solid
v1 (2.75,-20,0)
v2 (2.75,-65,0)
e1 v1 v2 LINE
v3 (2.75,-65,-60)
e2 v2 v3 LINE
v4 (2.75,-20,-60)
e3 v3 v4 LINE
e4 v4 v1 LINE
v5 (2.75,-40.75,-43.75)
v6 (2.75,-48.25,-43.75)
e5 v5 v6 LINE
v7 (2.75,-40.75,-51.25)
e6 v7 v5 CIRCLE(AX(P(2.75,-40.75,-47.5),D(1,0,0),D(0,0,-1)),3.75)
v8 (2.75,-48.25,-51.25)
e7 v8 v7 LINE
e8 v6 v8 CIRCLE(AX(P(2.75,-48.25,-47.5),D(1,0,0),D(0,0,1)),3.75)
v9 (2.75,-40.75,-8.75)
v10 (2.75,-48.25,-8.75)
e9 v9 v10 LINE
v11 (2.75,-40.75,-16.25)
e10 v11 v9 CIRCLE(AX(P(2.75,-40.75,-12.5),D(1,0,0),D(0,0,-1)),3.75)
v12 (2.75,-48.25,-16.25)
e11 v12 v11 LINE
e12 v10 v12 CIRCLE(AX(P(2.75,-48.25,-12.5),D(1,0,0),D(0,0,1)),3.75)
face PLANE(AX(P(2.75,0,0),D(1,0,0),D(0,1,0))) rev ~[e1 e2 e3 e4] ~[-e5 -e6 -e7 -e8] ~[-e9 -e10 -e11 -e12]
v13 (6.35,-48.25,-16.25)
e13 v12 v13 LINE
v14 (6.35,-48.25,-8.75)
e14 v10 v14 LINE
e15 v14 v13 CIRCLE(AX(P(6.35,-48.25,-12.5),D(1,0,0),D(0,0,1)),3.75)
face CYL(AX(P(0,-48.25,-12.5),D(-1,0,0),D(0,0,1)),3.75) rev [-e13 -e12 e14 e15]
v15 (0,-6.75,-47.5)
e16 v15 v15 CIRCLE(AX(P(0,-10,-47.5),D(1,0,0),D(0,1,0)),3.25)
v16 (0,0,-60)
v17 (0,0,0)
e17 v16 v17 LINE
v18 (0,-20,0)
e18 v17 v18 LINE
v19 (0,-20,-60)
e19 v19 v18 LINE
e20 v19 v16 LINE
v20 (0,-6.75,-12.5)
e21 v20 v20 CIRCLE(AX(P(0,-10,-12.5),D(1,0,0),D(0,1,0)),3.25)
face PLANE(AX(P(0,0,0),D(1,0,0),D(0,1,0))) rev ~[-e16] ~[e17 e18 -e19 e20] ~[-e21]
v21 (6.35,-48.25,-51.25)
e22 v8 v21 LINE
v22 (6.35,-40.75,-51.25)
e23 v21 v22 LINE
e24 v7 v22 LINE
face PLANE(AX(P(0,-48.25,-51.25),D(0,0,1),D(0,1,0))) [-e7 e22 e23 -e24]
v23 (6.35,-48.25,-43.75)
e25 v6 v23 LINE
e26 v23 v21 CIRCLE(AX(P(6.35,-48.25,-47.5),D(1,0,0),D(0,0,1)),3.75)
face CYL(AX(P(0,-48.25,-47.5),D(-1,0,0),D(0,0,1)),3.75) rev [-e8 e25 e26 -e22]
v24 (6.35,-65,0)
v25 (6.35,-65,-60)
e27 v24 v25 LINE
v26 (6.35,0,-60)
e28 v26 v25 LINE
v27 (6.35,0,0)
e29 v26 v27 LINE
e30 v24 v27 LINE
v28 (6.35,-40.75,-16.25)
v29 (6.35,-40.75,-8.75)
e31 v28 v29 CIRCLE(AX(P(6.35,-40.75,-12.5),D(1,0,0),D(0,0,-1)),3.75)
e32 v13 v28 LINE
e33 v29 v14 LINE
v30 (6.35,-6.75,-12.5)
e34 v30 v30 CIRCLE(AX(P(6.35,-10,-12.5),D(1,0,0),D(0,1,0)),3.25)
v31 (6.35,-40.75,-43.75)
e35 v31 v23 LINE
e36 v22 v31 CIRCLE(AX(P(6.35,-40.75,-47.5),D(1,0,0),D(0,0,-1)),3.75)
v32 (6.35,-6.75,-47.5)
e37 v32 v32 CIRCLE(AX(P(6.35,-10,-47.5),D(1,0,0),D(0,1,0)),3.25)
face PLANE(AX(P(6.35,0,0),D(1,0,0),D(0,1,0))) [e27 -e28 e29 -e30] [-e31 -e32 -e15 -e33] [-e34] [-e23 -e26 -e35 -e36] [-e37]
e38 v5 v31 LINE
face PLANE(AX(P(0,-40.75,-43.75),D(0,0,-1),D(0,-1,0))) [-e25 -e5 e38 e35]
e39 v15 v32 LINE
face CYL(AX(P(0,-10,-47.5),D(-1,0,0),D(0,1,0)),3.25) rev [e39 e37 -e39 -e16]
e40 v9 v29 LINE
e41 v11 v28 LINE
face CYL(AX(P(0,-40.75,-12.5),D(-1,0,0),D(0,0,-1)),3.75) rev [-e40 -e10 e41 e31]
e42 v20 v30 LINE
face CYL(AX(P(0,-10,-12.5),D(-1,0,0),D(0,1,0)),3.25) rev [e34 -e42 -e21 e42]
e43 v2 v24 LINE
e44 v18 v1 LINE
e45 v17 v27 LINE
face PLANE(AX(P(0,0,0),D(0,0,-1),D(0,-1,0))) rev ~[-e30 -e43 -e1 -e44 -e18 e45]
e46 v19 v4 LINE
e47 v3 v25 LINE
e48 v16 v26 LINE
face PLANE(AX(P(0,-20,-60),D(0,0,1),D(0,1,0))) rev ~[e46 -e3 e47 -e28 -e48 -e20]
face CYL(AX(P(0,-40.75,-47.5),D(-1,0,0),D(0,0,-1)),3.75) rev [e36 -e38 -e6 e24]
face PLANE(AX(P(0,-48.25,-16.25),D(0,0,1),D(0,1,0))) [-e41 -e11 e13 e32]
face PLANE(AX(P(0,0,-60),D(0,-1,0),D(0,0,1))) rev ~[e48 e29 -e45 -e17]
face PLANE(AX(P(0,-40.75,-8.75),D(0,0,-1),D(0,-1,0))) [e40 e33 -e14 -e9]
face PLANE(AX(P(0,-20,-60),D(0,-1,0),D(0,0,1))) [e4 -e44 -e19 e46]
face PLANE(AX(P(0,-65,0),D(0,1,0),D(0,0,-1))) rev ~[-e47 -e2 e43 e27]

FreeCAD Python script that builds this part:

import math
import FreeCAD as App
import Part
import Sketcher
from FreeCAD import Vector

doc = App.newDocument("Part")
body = doc.addObject("PartDesign::Body", "Body")

# Sketch on YZ plane
sketch1 = body.newObject("Sketcher::SketchObject", "Sketch")
sketch1.AttachmentSupport = (doc.getObject("YZ_Plane"), [""])
sketch1.MapMode = "FlatFace"
sketch1.addGeometry(Part.LineSegment(Vector(0, -60, 0), Vector(0, 0, 0)), False)
sketch1.addGeometry(Part.LineSegment(Vector(0, 0, 0), Vector(-65, 0, 0)), False)
sketch1.addGeometry(Part.LineSegment(Vector(-65, 0, 0), Vector(-65, -60, 0)), False)
sketch1.addGeometry(Part.LineSegment(Vector(-65, -60, 0), Vector(0, -60, 0)), False)
sketch1.addGeometry(Part.Circle(Vector(-10, -47.5, 0), Vector(0, 0, 1), 3.2), False)
sketch1.addGeometry(Part.Circle(Vector(-10, -12.5, 0), Vector(0, 0, 1), 3.2), False)
sketch1.addGeometry(Part.ArcOfCircle(Part.Circle(Vector(-40.8, -12.5, 0), Vector(0, 0, 1), 3.8), math.radians(-90), math.radians(90)), False)
sketch1.addGeometry(Part.LineSegment(Vector(-40.8, -16.2, 0), Vector(-48.2, -16.2, 0)), False)
sketch1.addGeometry(Part.ArcOfCircle(Part.Circle(Vector(-48.2, -12.5, 0), Vector(0, 0, 1), 3.8), math.radians(90), math.radians(270)), False)
sketch1.addGeometry(Part.LineSegment(Vector(-48.2, -8.8, 0), Vector(-40.8, -8.8, 0)), False)
sketch1.addGeometry(Part.LineSegment(Vector(-48.2, -43.8, 0), Vector(-40.8, -43.8, 0)), False)
sketch1.addGeometry(Part.ArcOfCircle(Part.Circle(Vector(-40.8, -47.5, 0), Vector(0, 0, 1), 3.8), math.radians(-90), math.radians(90)), False)
sketch1.addGeometry(Part.LineSegment(Vector(-40.8, -51.2, 0), Vector(-48.2, -51.2, 0)), False)
sketch1.addGeometry(Part.ArcOfCircle(Part.Circle(Vector(-48.2, -47.5, 0), Vector(0, 0, 1), 3.8), math.radians(90), math.radians(270)), False)
sketch1.addConstraint(Sketcher.Constraint("Coincident", 0, 2, 1, 1))
sketch1.addConstraint(Sketcher.Constraint("Coincident", 1, 2, 2, 1))
sketch1.addConstraint(Sketcher.Constraint("Coincident", 2, 2, 3, 1))
sketch1.addConstraint(Sketcher.Constraint("Coincident", 3, 2, 0, 1))
sketch1.addConstraint(Sketcher.Constraint("Tangent", 6, 1, 7, 1))
sketch1.addConstraint(Sketcher.Constraint("Tangent", 7, 2, 8, 2))
sketch1.addConstraint(Sketcher.Constraint("Tangent", 8, 1, 9, 1))
sketch1.addConstraint(Sketcher.Constraint("Tangent", 9, 2, 6, 2))
sketch1.addConstraint(Sketcher.Constraint("Tangent", 10, 2, 11, 2))
sketch1.addConstraint(Sketcher.Constraint("Tangent", 11, 1, 12, 1))
sketch1.addConstraint(Sketcher.Constraint("Tangent", 12, 2, 13, 2))
sketch1.addConstraint(Sketcher.Constraint("Tangent", 13, 1, 10, 1))
sketch1.addConstraint(Sketcher.Constraint("Vertical", 0))
sketch1.addConstraint(Sketcher.Constraint("Horizontal", 1))
sketch1.addConstraint(Sketcher.Constraint("Vertical", 2))
sketch1.addConstraint(Sketcher.Constraint("Horizontal", 3))
sketch1.addConstraint(Sketcher.Constraint("Horizontal", 7))
sketch1.addConstraint(Sketcher.Constraint("Horizontal", 9))
sketch1.addConstraint(Sketcher.Constraint("Horizontal", 10))
sketch1.addConstraint(Sketcher.Constraint("Horizontal", 12))
sketch1.addConstraint(Sketcher.Constraint("Coincident", 0, 2, -1, 1))
sketch1.addConstraint(Sketcher.Constraint("Equal", 4, 5))
sketch1.addConstraint(Sketcher.Constraint("Equal", 8, 11))
sketch1.addConstraint(Sketcher.Constraint("Horizontal", 5, 3, 6, 3))
sketch1.addConstraint(Sketcher.Constraint("Horizontal", 4, 3, 11, 3))
sketch1.addConstraint(Sketcher.Constraint("Vertical", 4, 3, 5, 3))
sketch1.addConstraint(Sketcher.Constraint("Vertical", 6, 3, 11, 3))
sketch1.addConstraint(Sketcher.Constraint("Vertical", 8, 3, 13, 3))
sketch1.addConstraint(Sketcher.Constraint("Diameter", 4, 6.5))
sketch1.addConstraint(Sketcher.Constraint("DistanceX", 1, 2, 1, 1, 65.0))
sketch1.addConstraint(Sketcher.Constraint("DistanceY", 0, 1, 0, 2, 60.0))
sketch1.addConstraint(Sketcher.Constraint("Radius", 6, 3.75))
sketch1.addConstraint(Sketcher.Constraint("DistanceX", 7, 2, 7, 1, 7.5))
sketch1.addConstraint(Sketcher.Constraint("DistanceX", 4, 3, -1, 1, 10.0))
sketch1.addConstraint(Sketcher.Constraint("DistanceY", 4, 3, 5, 3, 35.0))
sketch1.addConstraint(Sketcher.Constraint("DistanceY", 8, 1, -1, 1, 8.75))
sketch1.addConstraint(Sketcher.Constraint("DistanceX", 6, 3, 5, 3, 30.75))
pad1 = body.newObject("PartDesign::Pad", "Pad")
pad1.Profile = sketch1
pad1.Length = 6.35

# Sketch on YZ plane
sketch2 = body.newObject("Sketcher::SketchObject", "Sketch001")
sketch2.AttachmentSupport = (doc.getObject("YZ_Plane"), [""])
sketch2.MapMode = "FlatFace"
sketch2.addGeometry(Part.LineSegment(Vector(-20, -60, 0), Vector(-20, 0, 0)), False)
sketch2.addGeometry(Part.LineSegment(Vector(-20, 0, 0), Vector(-65, 0, 0)), False)
sketch2.addGeometry(Part.LineSegment(Vector(-65, 0, 0), Vector(-65, -60, 0)), False)
sketch2.addGeometry(Part.LineSegment(Vector(-65, -60, 0), Vector(-20, -60, 0)), False)
sketch2.addGeometry(Part.LineSegment(Vector(-48.2, -43.8, 0), Vector(-40.8, -43.8, 0)), False)
sketch2.addGeometry(Part.ArcOfCircle(Part.Circle(Vector(-40.8, -47.5, 0), Vector(0, 0, 1), 3.8), math.radians(-90), math.radians(90)), False)
sketch2.addGeometry(Part.LineSegment(Vector(-40.8, -51.2, 0), Vector(-48.2, -51.2, 0)), False)
sketch2.addGeometry(Part.ArcOfCircle(Part.Circle(Vector(-48.2, -47.5, 0), Vector(0, 0, 1), 3.8), math.radians(90), math.radians(270)), False)
sketch2.addGeometry(Part.LineSegment(Vector(-48.2, -8.8, 0), Vector(-40.8, -8.8, 0)), False)
sketch2.addGeometry(Part.ArcOfCircle(Part.Circle(Vector(-40.8, -12.5, 0), Vector(0, 0, 1), 3.8), math.radians(-90), math.radians(90)), False)
sketch2.addGeometry(Part.LineSegment(Vector(-40.8, -16.2, 0), Vector(-48.2, -16.2, 0)), False)
sketch2.addGeometry(Part.ArcOfCircle(Part.Circle(Vector(-48.2, -12.5, 0), Vector(0, 0, 1), 3.8), math.radians(90), math.radians(270)), False)
sketch2.addConstraint(Sketcher.Constraint("Coincident", 0, 2, 1, 1))
sketch2.addConstraint(Sketcher.Constraint("Coincident", 1, 2, 2, 1))
sketch2.addConstraint(Sketcher.Constraint("Coincident", 2, 2, 3, 1))
sketch2.addConstraint(Sketcher.Constraint("Coincident", 3, 2, 0, 1))
sketch2.addConstraint(Sketcher.Constraint("Tangent", 4, 2, 5, 2))
sketch2.addConstraint(Sketcher.Constraint("Tangent", 5, 1, 6, 1))
sketch2.addConstraint(Sketcher.Constraint("Tangent", 6, 2, 7, 2))
sketch2.addConstraint(Sketcher.Constraint("Tangent", 7, 1, 4, 1))
sketch2.addConstraint(Sketcher.Constraint("Tangent", 8, 2, 9, 2))
sketch2.addConstraint(Sketcher.Constraint("Tangent", 9, 1, 10, 1))
sketch2.addConstraint(Sketcher.Constraint("Tangent", 10, 2, 11, 2))
sketch2.addConstraint(Sketcher.Constraint("Tangent", 11, 1, 8, 1))
sketch2.addConstraint(Sketcher.Constraint("Vertical", 0))
sketch2.addConstraint(Sketcher.Constraint("Horizontal", 1))
sketch2.addConstraint(Sketcher.Constraint("Vertical", 2))
sketch2.addConstraint(Sketcher.Constraint("Horizontal", 3))
sketch2.addConstraint(Sketcher.Constraint("Horizontal", 4))
sketch2.addConstraint(Sketcher.Constraint("Horizontal", 6))
sketch2.addConstraint(Sketcher.Constraint("Horizontal", 8))
sketch2.addConstraint(Sketcher.Constraint("Horizontal", 10))
sketch2.addConstraint(Sketcher.Constraint("Equal", 7, 9))
sketch2.addConstraint(Sketcher.Constraint("PointOnObject", 0, 2, -1))
sketch2.addConstraint(Sketcher.Constraint("Vertical", 5, 3, 9, 3))
sketch2.addConstraint(Sketcher.Constraint("Vertical", 7, 3, 11, 3))
sketch2.addConstraint(Sketcher.Constraint("DistanceY", 0, 1, 0, 2, 60.0))
sketch2.addConstraint(Sketcher.Constraint("Radius", 5, 3.75))
sketch2.addConstraint(Sketcher.Constraint("DistanceX", 4, 1, 4, 2, 7.5))
sketch2.addConstraint(Sketcher.Constraint("DistanceX", 0, 2, -1, 1, 20.0))
sketch2.addConstraint(Sketcher.Constraint("DistanceX", 1, 2, -1, 1, 65.0))
sketch2.addConstraint(Sketcher.Constraint("DistanceY", 5, 3, 9, 3, 35.0))
sketch2.addConstraint(Sketcher.Constraint("DistanceY", 8, 2, -1, 1, 8.75))
sketch2.addConstraint(Sketcher.Constraint("DistanceX", 5, 3, -1, 1, 40.75))
pocket1 = body.newObject("PartDesign::Pocket", "Pocket")
pocket1.Profile = sketch2
pocket1.Length = 2.75
pocket1.Reversed = True

doc.recompute()
